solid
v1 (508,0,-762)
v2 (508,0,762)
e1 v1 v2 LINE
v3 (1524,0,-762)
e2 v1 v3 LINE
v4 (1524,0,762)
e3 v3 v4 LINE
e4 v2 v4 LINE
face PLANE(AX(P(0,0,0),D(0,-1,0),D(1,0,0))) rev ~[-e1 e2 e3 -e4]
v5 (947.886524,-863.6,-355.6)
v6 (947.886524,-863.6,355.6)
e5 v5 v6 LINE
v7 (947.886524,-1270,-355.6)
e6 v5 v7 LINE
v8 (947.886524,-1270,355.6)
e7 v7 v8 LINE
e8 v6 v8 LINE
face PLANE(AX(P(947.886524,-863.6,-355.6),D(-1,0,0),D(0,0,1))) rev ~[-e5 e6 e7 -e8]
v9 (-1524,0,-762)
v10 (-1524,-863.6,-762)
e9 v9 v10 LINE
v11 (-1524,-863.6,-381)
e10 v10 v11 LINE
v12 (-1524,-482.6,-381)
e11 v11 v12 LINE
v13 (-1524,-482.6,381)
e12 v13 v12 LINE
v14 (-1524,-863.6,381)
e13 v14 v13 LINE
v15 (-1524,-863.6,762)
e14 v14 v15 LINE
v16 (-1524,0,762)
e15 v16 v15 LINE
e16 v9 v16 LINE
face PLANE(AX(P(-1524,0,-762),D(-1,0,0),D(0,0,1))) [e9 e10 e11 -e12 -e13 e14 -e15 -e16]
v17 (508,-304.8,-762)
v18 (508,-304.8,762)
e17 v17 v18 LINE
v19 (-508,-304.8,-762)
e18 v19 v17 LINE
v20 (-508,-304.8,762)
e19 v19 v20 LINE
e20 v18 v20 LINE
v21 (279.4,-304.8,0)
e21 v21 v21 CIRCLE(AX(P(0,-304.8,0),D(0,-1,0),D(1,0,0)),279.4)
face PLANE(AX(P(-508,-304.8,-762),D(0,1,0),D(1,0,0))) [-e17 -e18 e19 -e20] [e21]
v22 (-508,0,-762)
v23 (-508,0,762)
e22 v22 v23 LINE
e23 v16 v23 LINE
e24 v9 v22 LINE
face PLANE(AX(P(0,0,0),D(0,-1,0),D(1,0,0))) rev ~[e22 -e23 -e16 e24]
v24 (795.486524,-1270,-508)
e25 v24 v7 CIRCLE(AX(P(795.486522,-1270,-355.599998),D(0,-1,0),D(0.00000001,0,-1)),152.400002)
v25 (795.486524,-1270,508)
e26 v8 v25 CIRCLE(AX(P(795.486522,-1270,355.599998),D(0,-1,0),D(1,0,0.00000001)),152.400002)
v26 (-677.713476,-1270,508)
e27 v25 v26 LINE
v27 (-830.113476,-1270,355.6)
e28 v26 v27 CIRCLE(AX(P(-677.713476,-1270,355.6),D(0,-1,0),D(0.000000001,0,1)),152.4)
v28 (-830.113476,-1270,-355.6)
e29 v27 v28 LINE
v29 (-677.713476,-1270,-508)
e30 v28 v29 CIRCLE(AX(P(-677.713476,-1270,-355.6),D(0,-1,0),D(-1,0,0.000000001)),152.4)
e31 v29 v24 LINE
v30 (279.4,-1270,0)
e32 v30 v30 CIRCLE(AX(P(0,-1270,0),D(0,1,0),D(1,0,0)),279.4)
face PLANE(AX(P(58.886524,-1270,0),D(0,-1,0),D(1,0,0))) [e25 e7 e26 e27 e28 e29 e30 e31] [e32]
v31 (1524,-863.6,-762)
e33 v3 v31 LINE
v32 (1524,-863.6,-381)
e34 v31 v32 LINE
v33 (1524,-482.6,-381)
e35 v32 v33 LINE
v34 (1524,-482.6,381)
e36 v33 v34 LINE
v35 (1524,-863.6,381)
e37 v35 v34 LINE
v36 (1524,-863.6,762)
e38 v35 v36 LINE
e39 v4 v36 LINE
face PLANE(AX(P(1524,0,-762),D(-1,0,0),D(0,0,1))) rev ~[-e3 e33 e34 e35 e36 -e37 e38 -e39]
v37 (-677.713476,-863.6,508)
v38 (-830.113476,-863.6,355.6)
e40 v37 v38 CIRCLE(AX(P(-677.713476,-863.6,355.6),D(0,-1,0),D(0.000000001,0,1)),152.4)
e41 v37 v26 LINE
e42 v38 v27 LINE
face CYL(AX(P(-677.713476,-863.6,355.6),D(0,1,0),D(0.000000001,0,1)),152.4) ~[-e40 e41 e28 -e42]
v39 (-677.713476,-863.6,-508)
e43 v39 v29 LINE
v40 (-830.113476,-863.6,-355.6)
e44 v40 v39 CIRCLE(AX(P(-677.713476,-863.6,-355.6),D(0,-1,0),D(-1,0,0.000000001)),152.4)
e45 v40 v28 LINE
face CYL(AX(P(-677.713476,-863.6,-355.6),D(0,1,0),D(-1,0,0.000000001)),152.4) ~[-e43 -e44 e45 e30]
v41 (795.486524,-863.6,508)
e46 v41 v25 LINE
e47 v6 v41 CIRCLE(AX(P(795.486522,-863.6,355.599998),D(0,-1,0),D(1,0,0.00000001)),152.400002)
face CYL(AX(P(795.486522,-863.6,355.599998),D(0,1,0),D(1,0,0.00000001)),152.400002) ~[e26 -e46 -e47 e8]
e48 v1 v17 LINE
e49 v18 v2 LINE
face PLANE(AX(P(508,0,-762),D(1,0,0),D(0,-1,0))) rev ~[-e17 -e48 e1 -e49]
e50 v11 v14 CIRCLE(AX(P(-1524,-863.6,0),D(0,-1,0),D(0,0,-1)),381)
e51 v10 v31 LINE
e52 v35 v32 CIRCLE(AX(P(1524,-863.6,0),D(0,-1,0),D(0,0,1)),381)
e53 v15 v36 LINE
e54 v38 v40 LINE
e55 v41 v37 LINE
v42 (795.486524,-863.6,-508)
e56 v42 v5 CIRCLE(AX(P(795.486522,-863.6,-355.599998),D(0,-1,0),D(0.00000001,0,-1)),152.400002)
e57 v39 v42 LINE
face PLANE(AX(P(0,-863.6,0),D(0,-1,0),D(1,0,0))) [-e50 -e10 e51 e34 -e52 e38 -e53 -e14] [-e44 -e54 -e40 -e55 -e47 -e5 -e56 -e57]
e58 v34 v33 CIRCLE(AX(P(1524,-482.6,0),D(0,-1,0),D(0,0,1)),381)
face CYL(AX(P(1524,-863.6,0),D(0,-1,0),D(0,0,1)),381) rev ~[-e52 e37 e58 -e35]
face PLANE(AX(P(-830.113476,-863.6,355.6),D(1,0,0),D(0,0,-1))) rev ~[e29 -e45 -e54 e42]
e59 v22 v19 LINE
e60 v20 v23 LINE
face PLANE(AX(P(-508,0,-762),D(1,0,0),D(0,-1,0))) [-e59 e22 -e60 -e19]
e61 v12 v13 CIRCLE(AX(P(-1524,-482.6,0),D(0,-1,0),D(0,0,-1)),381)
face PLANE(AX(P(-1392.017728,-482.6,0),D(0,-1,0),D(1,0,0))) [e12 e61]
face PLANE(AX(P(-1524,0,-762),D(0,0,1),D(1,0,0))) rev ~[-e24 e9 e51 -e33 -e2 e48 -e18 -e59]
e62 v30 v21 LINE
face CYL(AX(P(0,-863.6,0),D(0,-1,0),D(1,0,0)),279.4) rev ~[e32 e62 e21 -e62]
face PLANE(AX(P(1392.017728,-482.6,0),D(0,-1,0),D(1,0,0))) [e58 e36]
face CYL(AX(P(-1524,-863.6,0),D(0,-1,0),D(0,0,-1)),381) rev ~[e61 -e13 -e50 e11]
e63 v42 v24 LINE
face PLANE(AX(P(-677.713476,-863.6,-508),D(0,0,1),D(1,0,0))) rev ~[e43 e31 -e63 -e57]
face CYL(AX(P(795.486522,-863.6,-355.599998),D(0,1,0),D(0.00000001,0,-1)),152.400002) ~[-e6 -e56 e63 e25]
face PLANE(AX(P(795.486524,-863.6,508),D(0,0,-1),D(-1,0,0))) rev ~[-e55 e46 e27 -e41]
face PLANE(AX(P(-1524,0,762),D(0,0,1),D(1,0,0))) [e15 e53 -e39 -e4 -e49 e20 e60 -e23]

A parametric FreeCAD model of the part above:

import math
import FreeCAD as App
import Part
import Sketcher

V = App.Vector
Q = App.Units.Quantity

doc = App.newDocument("Part")
body = doc.addObject("PartDesign::Body", "Body")

# Sketch on XZ plane
sketch1 = doc.addObject("Sketcher::SketchObject", "Sketch")
body.addObject(sketch1)
sketch1.AttachmentSupport = (doc.XZ_Plane, [""])
sketch1.MapMode = "FlatFace"
sketch1.addGeometry(Part.LineSegment(V(-1524, 762, 0), V(-1524, -762, 0)), False)
sketch1.addGeometry(Part.LineSegment(V(-1524, -762, 0), V(1524, -762, 0)), False)
sketch1.addGeometry(Part.LineSegment(V(1524, -762, 0), V(1524, 762, 0)), False)
sketch1.addGeometry(Part.LineSegment(V(1524, 762, 0), V(-1524, 762, 0)), False)
sketch1.addConstraint(Sketcher.Constraint("Coincident", 0, 2, 1, 1))
sketch1.addConstraint(Sketcher.Constraint("Coincident", 1, 2, 2, 1))
sketch1.addConstraint(Sketcher.Constraint("Coincident", 2, 2, 3, 1))
sketch1.addConstraint(Sketcher.Constraint("Coincident", 3, 2, 0, 1))
sketch1.addConstraint(Sketcher.Constraint("Vertical", 0))
sketch1.addConstraint(Sketcher.Constraint("Horizontal", 1))
sketch1.addConstraint(Sketcher.Constraint("Vertical", 2))
sketch1.addConstraint(Sketcher.Constraint("Horizontal", 3))
sketch1.addConstraint(Sketcher.Constraint("Symmetric", 0, 2, 2, 2, -1, 1))
sketch1.addConstraint(Sketcher.Constraint("DistanceX", 1, 1, 1, 2, Q("120 in")))
sketch1.addConstraint(Sketcher.Constraint("DistanceY", 0, 2, 0, 1, Q("60 in")))
pad1 = doc.addObject("PartDesign::Pad", "Pad")
body.addObject(pad1)
pad1.Profile = sketch1
pad1.Length = Q("34 in")

# Sketch on XZ plane
sketch2 = doc.addObject("Sketcher::SketchObject", "Sketch001")
body.addObject(sketch2)
sketch2.AttachmentSupport = (doc.XZ_Plane, [""])
sketch2.MapMode = "FlatFace"
sketch2.AttachmentOffset = App.Placement(V(0, 0, 34 * 25.4), App.Rotation())
sketch2.addGeometry(Part.LineSegment(V(-1524, 381, 0), V(-1524, -381, 0)), False)
sketch2.addGeometry(Part.ArcOfCircle(Part.Circle(V(-1524, 0, 0), V(0, 0, 1), 381), math.radians(-90), math.radians(90)), False)
sketch2.addGeometry(Part.ArcOfCircle(Part.Circle(V(1524, 0, 0), V(0, 0, 1), 381), math.radians(90), math.radians(270)), False)
sketch2.addGeometry(Part.LineSegment(V(1524, -381, 0), V(1524, 381, 0)), False)
sketch2.addConstraint(Sketcher.Constraint("Coincident", 0, 1, 1, 2))
sketch2.addConstraint(Sketcher.Constraint("Coincident", 1, 1, 0, 2))
sketch2.addConstraint(Sketcher.Constraint("Coincident", 2, 1, 3, 2))
sketch2.addConstraint(Sketcher.Constraint("Coincident", 3, 1, 2, 2))
sketch2.addConstraint(Sketcher.Constraint("Vertical", 0))
sketch2.addConstraint(Sketcher.Constraint("Vertical", 3))
sketch2.addConstraint(Sketcher.Constraint("Equal", 1, 2))
sketch2.addConstraint(Sketcher.Constraint("Symmetric", 1, 3, 2, 3, -1, 1))
sketch2.addConstraint(Sketcher.Constraint("Symmetric", 0, 1, 2, 1, -2))
sketch2.addConstraint(Sketcher.Constraint("Vertical", 1, 3, 0, 1))
sketch2.addConstraint(Sketcher.Constraint("Radius", 1, Q("15 in")))
sketch2.addConstraint(Sketcher.Constraint("DistanceX", 1, 3, -1, 1, Q("60 in")))
pocket1 = doc.addObject("PartDesign::Pocket", "Pocket")
body.addObject(pocket1)
pocket1.Profile = sketch2
pocket1.Length = Q("15 in")

# Sketch on XY plane
sketch3 = doc.addObject("Sketcher::SketchObject", "Sketch002")
body.addObject(sketch3)
sketch3.AttachmentSupport = (doc.XY_Plane, [""])
sketch3.MapMode = "FlatFace"
sketch3.AttachmentOffset = App.Placement(V(0, 0, -30 * 25.4), App.Rotation())
sketch3.addGeometry(Part.LineSegment(V(-508, -304.8, 0), V(-508, 0, 0)), False)
sketch3.addGeometry(Part.LineSegment(V(-508, 0, 0), V(508, 0, 0)), False)
sketch3.addGeometry(Part.LineSegment(V(508, 0, 0), V(508, -304.8, 0)), False)
sketch3.addGeometry(Part.LineSegment(V(508, -304.8, 0), V(-508, -304.8, 0)), False)
sketch3.addConstraint(Sketcher.Constraint("Coincident", 0, 2, 1, 1))
sketch3.addConstraint(Sketcher.Constraint("Coincident", 1, 2, 2, 1))
sketch3.addConstraint(Sketcher.Constraint("Coincident", 2, 2, 3, 1))
sketch3.addConstraint(Sketcher.Constraint("Coincident", 3, 2, 0, 1))
sketch3.addConstraint(Sketcher.Constraint("Vertical", 0))
sketch3.addConstraint(Sketcher.Constraint("Horizontal", 1))
sketch3.addConstraint(Sketcher.Constraint("Vertical", 2))
sketch3.addConstraint(Sketcher.Constraint("Horizontal", 3))
sketch3.addConstraint(Sketcher.Constraint("Symmetric", 0, 2, 1, 2, -1, 1))
sketch3.addConstraint(Sketcher.Constraint("DistanceX", 1, 1, 1, 2, Q("40 in")))
sketch3.addConstraint(Sketcher.Constraint("DistanceY", 0, 1, 0, 2, Q("12 in")))
pocket2 = doc.addObject("PartDesign::Pocket", "Pocket001")
body.addObject(pocket2)
pocket2.Profile = sketch3
pocket2.Type = "ThroughAll"
pocket2.Reversed = True

# Sketch on XZ plane
sketch4 = doc.addObject("Sketcher::SketchObject", "Sketch003")
body.addObject(sketch4)
sketch4.AttachmentSupport = (doc.XZ_Plane, [""])
sketch4.MapMode = "FlatFace"
sketch4.AttachmentOffset = App.Placement(V(0, 0, 34 * 25.4), App.Rotation())
sketch4.addGeometry(Part.ArcOfCircle(Part.Circle(V(795.486522, 355.599998, 0), V(0, 0, 1), 152.400002), math.radians(0.000001), math.radians(89.999999)), False)
sketch4.addGeometry(Part.LineSegment(V(795.486524, 508, 0), V(-677.713476, 508, 0)), False)
sketch4.addGeometry(Part.ArcOfCircle(Part.Circle(V(-677.713476, 355.6, 0), V(0, 0, 1), 152.4), math.radians(90), math.radians(180)), False)
sketch4.addGeometry(Part.LineSegment(V(-830.113476, 355.6, 0), V(-830.113476, -355.6, 0)), False)
sketch4.addGeometry(Part.ArcOfCircle(Part.Circle(V(-677.713476, -355.6, 0), V(0, 0, 1), 152.4), math.radians(180), math.radians(270)), False)
sketch4.addGeometry(Part.LineSegment(V(-677.713476, -508, 0), V(795.486524, -508, 0)), False)
sketch4.addGeometry(Part.ArcOfCircle(Part.Circle(V(795.486522, -355.599998, 0), V(0, 0, 1), 152.400002), math.radians(-89.999999), math.radians(-0.000001)), False)
sketch4.addGeometry(Part.LineSegment(V(947.886524, -355.6, 0), V(947.886524, 355.6, 0)), False)
sketch4.addConstraint(Sketcher.Constraint("Tangent", 0, 2, 1, 1))
sketch4.addConstraint(Sketcher.Constraint("Tangent", 1, 2, 2, 1))
sketch4.addConstraint(Sketcher.Constraint("Tangent", 2, 2, 3, 1))
sketch4.addConstraint(Sketcher.Constraint("Tangent", 3, 2, 4, 1))
sketch4.addConstraint(Sketcher.Constraint("Tangent", 4, 2, 5, 1))
sketch4.addConstraint(Sketcher.Constraint("Tangent", 5, 2, 6, 1))
sketch4.addConstraint(Sketcher.Constraint("Tangent", 6, 2, 7, 1))
sketch4.addConstraint(Sketcher.Constraint("Tangent", 7, 2, 0, 1))
sketch4.addConstraint(Sketcher.Constraint("Horizontal", 1))
sketch4.addConstraint(Sketcher.Constraint("Vertical", 3))
sketch4.addConstraint(Sketcher.Constraint("Horizontal", 5))
sketch4.addConstraint(Sketcher.Constraint("Vertical", 7))
sketch4.addConstraint(Sketcher.Constraint("Equal", 0, 2))
sketch4.addConstraint(Sketcher.Constraint("Equal", 2, 4))
sketch4.addConstraint(Sketcher.Constraint("Equal", 4, 6))
sketch4.addConstraint(Sketcher.Constraint("Radius", 0, Q("6.0000001 in")))
sketch4.addConstraint(Sketcher.Constraint("DistanceX", 1, 2, 1, 1, Q("58 in")))
sketch4.addConstraint(Sketcher.Constraint("DistanceY", 3, 2, 3, 1, Q("28 in")))
sketch4.addConstraint(Sketcher.Constraint("DistanceY", -1, 1, 0, 3, Q("13.9999999 in")))
sketch4.addConstraint(Sketcher.Constraint("DistanceX", -1, 1, 0, 3, 795.486522))
pad2 = doc.addObject("PartDesign::Pad", "Pad001")
body.addObject(pad2)
pad2.Profile = sketch4
pad2.Length = Q("16 in")

# Sketch on XZ plane
sketch5 = doc.addObject("Sketcher::SketchObject", "Sketch004")
body.addObject(sketch5)
sketch5.AttachmentSupport = (doc.XZ_Plane, [""])
sketch5.MapMode = "FlatFace"
sketch5.AttachmentOffset = App.Placement(V(0, 0, 34 * 25.4), App.Rotation())
sketch5.addGeometry(Part.Circle(V(0, 0, 0), V(0, 0, 1), 279.4), False)
sketch5.addConstraint(Sketcher.Constraint("Coincident", 0, 3, -1, 1))
sketch5.addConstraint(Sketcher.Constraint("Diameter", 0, Q("22 in")))
pocket3 = doc.addObject("PartDesign::Pocket", "Pocket002")
body.addObject(pocket3)
pocket3.Profile = sketch5
pocket3.Type = "ThroughAll"
pocket3.Reversed = True

# Sketch on XZ plane
sketch6 = doc.addObject("Sketcher::SketchObject", "Sketch005")
body.addObject(sketch6)
sketch6.AttachmentSupport = (doc.XZ_Plane, [""])
sketch6.MapMode = "FlatFace"
sketch6.AttachmentOffset = App.Placement(V(0, 0, 34 * 25.4), App.Rotation())
sketch6.addGeometry(Part.Circle(V(0, 0, 0), V(0, 0, 1), 279.4), False)
sketch6.addConstraint(Sketcher.Constraint("Coincident", 0, 3, -1, 1))
sketch6.addConstraint(Sketcher.Constraint("Diameter", 0, Q("22 in")))
pocket4 = doc.addObject("PartDesign::Pocket", "Pocket003")
body.addObject(pocket4)
pocket4.Profile = sketch6
pocket4.Type = "ThroughAll"

doc.recompute()
